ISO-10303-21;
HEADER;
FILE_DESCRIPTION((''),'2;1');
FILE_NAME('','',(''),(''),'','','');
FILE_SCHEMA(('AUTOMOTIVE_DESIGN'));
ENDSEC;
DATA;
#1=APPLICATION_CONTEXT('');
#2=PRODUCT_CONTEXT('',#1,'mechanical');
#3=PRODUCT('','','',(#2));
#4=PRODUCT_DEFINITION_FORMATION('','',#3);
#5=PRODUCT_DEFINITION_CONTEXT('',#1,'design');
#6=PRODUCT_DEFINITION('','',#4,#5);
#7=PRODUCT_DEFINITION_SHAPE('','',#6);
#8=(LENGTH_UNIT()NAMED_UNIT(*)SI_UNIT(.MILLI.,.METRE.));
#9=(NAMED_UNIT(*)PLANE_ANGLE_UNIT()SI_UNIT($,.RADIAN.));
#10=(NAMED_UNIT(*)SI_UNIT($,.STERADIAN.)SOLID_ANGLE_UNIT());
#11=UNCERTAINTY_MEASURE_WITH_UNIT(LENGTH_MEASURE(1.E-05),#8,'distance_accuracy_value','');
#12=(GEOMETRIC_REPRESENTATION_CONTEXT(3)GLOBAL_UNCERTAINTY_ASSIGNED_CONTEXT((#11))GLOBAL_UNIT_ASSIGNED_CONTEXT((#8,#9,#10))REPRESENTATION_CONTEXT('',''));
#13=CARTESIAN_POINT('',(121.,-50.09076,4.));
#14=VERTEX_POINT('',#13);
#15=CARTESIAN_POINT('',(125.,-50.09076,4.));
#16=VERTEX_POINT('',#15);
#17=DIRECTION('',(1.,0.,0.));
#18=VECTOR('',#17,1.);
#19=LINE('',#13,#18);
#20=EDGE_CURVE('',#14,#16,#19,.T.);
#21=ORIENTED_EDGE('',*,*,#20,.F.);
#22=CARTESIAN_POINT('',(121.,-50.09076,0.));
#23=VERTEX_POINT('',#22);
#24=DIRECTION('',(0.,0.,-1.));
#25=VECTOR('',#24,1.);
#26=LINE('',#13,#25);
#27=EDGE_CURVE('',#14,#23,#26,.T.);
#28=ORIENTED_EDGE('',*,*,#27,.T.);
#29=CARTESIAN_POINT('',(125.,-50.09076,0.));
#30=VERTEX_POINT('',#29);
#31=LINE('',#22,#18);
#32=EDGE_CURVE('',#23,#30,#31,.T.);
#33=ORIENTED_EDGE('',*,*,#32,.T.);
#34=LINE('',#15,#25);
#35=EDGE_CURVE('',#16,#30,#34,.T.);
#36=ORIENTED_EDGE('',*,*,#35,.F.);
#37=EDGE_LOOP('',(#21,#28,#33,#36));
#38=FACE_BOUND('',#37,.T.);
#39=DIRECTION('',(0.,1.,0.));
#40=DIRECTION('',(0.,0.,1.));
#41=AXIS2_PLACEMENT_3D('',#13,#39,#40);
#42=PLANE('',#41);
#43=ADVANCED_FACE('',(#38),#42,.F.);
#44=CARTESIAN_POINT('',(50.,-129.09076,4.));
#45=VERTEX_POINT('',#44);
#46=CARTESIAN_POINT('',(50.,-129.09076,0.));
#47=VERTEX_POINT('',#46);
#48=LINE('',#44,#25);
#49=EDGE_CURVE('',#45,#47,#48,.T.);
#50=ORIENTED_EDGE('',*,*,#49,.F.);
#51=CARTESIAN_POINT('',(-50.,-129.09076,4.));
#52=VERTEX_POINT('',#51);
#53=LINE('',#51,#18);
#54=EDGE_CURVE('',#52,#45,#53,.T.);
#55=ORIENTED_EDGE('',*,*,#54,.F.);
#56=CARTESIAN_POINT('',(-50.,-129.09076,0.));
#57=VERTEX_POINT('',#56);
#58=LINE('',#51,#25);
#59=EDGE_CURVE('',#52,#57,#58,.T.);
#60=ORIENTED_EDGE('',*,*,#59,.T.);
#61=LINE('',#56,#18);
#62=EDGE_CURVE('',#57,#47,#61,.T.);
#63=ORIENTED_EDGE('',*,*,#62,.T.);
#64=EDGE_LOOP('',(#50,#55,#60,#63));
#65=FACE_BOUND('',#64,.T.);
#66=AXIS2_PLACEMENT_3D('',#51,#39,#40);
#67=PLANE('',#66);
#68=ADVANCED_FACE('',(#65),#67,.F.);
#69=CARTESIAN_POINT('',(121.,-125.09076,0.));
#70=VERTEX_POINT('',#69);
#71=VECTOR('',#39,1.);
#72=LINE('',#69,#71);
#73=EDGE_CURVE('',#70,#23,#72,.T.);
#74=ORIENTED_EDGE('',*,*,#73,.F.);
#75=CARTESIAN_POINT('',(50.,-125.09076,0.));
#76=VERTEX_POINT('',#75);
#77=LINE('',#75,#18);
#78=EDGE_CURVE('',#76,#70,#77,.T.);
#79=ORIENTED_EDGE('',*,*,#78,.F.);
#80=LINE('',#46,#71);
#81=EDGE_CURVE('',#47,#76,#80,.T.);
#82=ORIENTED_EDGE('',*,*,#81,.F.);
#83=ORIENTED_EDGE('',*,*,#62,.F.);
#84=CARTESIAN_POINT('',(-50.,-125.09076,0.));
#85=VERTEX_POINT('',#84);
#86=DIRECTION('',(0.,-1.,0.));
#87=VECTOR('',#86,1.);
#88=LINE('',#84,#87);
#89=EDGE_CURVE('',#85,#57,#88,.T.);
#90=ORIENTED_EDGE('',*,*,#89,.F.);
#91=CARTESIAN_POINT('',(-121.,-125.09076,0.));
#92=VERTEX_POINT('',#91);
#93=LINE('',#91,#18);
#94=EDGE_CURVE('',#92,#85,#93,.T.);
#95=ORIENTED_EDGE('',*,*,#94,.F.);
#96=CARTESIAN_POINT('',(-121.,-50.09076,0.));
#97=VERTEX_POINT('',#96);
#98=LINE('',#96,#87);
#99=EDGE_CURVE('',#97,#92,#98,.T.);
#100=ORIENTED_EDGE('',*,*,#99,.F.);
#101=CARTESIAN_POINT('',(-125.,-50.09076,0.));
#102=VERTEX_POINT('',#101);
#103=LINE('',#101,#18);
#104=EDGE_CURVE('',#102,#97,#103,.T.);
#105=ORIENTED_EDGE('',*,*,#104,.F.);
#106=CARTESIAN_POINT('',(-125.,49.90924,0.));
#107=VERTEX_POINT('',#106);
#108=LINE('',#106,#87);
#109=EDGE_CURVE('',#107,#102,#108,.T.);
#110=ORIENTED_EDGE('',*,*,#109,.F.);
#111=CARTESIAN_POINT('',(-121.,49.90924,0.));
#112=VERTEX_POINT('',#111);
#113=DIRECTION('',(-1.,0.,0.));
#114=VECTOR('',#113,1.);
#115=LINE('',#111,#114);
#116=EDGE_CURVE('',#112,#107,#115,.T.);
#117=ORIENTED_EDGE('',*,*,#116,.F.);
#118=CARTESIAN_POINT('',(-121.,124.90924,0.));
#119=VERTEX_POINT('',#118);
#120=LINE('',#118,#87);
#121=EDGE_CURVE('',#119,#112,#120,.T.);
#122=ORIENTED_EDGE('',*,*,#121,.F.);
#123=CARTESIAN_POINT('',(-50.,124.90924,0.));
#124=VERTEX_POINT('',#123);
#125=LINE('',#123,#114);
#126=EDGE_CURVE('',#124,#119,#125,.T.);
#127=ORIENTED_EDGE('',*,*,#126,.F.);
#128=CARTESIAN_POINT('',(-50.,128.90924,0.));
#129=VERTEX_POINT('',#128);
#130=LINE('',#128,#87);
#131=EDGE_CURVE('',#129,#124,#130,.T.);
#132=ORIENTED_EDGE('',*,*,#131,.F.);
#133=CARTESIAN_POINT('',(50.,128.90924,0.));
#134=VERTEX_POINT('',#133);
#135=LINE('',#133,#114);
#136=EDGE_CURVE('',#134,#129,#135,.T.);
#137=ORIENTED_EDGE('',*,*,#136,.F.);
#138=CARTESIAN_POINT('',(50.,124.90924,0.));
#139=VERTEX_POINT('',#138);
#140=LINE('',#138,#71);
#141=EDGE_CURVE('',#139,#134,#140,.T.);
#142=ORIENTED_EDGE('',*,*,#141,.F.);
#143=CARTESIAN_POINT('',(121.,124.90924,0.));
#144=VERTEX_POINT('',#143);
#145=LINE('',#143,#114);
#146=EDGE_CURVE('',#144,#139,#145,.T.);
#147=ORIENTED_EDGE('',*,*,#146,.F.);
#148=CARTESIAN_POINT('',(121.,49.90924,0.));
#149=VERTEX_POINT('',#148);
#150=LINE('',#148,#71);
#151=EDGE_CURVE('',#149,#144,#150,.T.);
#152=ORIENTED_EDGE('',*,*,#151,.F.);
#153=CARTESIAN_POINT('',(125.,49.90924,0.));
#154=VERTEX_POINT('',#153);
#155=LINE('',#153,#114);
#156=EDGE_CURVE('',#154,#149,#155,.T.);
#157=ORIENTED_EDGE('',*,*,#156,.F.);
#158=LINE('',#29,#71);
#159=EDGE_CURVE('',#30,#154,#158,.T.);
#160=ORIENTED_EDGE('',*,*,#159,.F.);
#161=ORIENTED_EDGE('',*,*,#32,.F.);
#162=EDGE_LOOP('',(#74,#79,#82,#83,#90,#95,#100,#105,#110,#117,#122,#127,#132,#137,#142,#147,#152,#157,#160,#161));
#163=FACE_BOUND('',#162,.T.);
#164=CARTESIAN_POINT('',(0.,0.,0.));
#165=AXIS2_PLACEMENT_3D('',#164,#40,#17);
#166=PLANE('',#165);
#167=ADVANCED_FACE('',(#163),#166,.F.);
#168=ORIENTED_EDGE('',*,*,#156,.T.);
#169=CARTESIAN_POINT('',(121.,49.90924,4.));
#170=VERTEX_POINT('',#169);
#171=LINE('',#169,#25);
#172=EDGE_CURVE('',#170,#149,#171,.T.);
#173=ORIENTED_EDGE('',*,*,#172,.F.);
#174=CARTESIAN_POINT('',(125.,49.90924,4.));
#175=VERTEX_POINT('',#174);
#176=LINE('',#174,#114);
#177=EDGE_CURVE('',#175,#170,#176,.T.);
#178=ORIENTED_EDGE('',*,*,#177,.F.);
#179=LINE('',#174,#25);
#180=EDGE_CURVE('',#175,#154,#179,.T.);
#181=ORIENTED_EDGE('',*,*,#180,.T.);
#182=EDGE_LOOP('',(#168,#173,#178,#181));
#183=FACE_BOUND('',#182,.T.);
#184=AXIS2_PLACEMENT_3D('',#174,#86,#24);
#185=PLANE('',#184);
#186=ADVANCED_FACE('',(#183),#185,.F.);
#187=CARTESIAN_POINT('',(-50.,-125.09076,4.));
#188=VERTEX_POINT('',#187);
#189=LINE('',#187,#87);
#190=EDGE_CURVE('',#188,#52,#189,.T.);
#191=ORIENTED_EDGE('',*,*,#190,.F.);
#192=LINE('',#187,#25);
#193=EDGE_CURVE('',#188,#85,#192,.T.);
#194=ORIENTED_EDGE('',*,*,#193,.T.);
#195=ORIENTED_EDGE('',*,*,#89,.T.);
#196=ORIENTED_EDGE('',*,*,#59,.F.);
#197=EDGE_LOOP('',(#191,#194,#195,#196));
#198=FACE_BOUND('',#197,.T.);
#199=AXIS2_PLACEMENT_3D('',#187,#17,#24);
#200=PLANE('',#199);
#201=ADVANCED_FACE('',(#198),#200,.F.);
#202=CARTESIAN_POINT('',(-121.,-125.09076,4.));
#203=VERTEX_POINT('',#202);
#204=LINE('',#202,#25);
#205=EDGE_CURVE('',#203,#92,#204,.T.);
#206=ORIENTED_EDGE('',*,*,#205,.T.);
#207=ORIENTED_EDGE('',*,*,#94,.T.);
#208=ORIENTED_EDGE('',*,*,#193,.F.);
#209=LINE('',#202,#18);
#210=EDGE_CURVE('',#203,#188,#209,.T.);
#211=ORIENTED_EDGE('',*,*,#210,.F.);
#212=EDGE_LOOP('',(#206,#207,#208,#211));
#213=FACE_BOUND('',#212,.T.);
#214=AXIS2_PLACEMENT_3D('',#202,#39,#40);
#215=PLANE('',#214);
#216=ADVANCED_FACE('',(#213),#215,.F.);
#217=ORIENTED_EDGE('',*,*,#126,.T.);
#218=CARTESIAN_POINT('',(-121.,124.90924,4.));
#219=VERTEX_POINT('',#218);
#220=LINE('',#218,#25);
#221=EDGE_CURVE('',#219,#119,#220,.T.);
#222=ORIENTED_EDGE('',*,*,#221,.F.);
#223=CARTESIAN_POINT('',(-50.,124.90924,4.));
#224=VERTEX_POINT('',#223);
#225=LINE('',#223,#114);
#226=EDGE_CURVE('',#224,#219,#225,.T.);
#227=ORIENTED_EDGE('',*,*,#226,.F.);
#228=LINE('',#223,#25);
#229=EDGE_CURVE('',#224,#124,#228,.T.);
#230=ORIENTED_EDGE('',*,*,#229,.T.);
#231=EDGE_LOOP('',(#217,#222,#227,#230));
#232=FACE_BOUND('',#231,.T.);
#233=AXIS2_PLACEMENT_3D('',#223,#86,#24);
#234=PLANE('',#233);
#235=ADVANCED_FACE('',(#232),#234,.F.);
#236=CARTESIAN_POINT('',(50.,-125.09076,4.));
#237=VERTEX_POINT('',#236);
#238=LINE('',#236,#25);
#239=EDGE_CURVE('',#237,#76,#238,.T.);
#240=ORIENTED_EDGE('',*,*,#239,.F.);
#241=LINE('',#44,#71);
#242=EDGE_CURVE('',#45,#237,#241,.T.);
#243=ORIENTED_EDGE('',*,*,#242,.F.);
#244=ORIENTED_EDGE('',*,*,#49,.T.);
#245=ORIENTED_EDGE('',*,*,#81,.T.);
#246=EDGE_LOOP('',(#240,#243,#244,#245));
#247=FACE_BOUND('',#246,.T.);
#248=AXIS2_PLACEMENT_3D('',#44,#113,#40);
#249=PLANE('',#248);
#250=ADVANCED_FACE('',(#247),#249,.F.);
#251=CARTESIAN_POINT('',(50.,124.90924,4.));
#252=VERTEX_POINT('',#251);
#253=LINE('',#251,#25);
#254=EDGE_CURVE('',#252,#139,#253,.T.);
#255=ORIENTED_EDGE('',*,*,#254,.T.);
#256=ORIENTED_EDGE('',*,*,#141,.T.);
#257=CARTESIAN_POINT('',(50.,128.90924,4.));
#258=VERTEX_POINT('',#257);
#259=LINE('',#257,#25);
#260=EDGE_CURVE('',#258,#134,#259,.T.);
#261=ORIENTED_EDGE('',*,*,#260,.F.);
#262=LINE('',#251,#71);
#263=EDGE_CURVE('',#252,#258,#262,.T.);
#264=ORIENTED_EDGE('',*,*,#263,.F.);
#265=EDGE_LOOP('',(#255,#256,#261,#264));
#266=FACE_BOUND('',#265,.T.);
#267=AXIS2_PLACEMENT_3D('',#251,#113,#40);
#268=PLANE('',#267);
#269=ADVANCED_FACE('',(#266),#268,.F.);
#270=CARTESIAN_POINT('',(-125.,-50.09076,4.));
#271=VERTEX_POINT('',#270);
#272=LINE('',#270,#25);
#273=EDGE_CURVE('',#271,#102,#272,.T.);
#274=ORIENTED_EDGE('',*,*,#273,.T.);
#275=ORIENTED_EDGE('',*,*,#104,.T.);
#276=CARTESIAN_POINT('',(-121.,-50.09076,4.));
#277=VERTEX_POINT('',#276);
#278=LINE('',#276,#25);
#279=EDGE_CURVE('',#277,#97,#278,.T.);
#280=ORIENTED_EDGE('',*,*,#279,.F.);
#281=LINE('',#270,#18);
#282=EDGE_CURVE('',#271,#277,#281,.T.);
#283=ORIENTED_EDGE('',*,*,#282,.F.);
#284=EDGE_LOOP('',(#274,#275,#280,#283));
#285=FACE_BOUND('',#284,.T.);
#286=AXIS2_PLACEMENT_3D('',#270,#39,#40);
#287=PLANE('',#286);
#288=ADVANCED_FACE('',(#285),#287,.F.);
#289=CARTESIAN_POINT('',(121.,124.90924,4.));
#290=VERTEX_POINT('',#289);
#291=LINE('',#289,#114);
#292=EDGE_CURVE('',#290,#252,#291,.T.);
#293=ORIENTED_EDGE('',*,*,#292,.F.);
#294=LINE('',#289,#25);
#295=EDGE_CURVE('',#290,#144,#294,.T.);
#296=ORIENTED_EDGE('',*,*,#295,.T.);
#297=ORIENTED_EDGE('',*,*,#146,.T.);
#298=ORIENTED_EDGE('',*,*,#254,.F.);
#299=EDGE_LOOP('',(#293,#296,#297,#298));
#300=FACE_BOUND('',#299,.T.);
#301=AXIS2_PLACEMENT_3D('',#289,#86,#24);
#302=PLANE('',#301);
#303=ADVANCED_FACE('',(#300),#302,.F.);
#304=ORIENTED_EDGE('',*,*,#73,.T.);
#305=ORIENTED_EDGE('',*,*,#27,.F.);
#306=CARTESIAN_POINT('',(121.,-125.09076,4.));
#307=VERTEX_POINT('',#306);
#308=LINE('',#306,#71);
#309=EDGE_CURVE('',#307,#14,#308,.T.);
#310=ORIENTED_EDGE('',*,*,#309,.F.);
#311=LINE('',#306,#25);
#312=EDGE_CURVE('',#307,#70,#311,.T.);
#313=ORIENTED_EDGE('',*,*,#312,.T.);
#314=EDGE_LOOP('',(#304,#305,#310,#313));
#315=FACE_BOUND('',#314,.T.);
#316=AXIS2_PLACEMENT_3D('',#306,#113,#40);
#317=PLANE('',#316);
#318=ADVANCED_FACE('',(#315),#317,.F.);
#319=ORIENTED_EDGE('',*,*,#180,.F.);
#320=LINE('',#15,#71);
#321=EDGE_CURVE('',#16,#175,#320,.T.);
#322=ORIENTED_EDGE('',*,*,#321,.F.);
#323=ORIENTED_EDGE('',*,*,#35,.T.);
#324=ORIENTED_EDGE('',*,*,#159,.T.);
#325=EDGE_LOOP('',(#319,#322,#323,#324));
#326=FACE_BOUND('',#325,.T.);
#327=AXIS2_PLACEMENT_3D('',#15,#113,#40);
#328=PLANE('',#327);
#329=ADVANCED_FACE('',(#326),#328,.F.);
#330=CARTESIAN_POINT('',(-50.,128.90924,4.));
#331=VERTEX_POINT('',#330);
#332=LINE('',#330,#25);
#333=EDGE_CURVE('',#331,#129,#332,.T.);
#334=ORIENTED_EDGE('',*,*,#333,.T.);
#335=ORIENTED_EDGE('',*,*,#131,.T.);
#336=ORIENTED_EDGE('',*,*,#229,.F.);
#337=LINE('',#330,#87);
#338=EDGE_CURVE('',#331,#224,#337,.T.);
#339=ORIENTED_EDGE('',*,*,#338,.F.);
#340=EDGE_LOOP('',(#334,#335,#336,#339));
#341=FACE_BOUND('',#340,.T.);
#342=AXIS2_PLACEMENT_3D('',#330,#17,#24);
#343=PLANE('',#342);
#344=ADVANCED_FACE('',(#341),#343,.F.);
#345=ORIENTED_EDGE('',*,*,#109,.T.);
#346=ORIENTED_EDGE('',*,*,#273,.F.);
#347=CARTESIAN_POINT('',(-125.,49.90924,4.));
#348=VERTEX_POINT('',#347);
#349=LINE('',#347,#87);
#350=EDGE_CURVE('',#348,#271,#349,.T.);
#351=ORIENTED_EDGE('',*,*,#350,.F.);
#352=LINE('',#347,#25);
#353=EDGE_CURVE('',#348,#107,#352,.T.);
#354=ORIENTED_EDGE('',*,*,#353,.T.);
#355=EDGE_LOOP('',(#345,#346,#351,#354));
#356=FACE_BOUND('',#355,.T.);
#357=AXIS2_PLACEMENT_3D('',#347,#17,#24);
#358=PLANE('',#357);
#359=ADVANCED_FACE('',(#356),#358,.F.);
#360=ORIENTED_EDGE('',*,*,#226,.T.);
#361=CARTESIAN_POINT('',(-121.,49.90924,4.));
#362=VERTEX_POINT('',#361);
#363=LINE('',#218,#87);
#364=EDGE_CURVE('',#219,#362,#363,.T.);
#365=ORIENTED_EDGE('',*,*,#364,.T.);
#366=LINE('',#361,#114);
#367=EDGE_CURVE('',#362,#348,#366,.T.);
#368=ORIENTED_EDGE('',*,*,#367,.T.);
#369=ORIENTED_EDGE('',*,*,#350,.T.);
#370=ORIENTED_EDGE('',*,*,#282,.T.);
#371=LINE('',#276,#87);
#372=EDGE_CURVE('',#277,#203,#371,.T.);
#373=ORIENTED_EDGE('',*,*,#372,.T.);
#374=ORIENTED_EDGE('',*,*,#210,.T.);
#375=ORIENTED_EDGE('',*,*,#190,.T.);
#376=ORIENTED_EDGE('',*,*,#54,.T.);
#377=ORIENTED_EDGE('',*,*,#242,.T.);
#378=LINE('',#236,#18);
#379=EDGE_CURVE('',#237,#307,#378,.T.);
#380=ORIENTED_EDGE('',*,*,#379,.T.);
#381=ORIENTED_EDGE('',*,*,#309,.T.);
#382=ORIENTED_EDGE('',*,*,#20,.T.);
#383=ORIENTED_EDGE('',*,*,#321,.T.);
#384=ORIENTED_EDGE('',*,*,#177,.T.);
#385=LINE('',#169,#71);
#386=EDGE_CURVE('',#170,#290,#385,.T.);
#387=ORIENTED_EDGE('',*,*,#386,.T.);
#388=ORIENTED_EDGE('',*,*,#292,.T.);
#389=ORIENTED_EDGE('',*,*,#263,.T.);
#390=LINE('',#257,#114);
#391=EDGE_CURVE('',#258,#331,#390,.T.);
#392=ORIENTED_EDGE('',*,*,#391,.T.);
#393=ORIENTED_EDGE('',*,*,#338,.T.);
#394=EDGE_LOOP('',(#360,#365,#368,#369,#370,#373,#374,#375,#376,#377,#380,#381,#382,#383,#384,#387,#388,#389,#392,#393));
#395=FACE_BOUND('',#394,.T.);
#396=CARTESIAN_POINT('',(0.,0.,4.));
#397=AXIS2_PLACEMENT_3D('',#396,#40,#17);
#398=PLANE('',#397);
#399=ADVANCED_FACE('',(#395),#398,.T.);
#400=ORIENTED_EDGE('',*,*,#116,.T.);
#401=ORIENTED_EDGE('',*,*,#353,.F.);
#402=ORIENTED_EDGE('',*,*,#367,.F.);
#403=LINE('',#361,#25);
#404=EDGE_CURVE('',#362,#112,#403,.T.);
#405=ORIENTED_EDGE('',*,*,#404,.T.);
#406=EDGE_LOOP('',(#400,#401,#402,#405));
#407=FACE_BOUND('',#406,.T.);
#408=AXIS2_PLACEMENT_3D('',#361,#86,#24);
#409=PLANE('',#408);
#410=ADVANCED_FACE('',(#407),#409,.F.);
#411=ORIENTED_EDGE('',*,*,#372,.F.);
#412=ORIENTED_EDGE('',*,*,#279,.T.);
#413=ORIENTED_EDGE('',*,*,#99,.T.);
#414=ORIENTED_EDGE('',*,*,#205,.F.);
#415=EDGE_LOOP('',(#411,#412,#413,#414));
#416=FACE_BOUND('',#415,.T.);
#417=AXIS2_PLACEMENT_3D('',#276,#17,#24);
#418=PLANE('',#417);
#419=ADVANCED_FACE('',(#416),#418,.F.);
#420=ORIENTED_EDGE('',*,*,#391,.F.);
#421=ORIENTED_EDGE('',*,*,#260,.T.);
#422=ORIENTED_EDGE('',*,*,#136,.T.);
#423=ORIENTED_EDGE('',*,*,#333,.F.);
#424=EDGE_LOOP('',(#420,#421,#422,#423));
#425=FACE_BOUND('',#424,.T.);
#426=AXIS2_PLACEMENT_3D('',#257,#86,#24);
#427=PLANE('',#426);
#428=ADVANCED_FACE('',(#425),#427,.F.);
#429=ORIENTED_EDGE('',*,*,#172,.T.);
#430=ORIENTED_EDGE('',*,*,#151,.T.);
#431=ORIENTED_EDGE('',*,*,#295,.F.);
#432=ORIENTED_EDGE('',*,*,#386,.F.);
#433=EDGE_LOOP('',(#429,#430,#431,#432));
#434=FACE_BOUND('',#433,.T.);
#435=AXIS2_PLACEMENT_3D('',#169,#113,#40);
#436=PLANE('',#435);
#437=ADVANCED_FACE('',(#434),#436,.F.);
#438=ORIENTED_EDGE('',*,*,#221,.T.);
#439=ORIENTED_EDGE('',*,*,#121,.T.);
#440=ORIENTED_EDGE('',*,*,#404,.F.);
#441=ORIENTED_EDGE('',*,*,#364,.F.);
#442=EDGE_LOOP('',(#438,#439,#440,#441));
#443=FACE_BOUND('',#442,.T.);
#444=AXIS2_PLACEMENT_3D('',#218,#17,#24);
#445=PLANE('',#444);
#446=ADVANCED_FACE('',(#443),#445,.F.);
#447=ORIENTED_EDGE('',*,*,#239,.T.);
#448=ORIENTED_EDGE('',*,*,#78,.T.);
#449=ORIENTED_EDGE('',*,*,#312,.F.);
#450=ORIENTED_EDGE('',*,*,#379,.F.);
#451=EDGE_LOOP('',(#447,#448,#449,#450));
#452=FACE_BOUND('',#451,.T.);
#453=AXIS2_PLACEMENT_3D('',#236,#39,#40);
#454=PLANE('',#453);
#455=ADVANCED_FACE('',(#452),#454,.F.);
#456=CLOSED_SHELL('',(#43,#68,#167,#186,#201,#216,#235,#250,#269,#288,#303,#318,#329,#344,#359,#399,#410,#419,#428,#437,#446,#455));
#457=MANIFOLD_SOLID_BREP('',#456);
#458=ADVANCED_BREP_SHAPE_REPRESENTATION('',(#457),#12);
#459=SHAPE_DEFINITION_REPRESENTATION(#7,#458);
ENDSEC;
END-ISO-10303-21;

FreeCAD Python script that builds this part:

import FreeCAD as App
import Part
import Sketcher
Q = App.Units.Quantity

doc = App.newDocument("Part")
body = doc.addObject("PartDesign::Body", "Body")

sketch1 = doc.addObject("Sketcher::SketchObject", "Sketch")
body.addObject(sketch1)
sketch1.AttachmentSupport = (doc.XY_Plane, [""])
sketch1.MapMode = "FlatFace"
sketch1.addGeometry(Part.LineSegment(App.Vector(-50, 128.9, 0), App.Vector(-50, 124.9, 0)), False)
sketch1.addGeometry(Part.LineSegment(App.Vector(-50, 124.9, 0), App.Vector(-121, 124.9, 0)), False)
sketch1.addGeometry(Part.LineSegment(App.Vector(-121, 124.9, 0), App.Vector(-121, 49.9, 0)), False)
sketch1.addGeometry(Part.LineSegment(App.Vector(-121, 49.9, 0), App.Vector(-125, 49.9, 0)), False)
sketch1.addGeometry(Part.LineSegment(App.Vector(-125, 49.9, 0), App.Vector(-125, -50.1, 0)), False)
sketch1.addGeometry(Part.LineSegment(App.Vector(-125, -50.1, 0), App.Vector(-121, -50.1, 0)), False)
sketch1.addGeometry(Part.LineSegment(App.Vector(-121, -50.1, 0), App.Vector(-121, -125.1, 0)), False)
sketch1.addGeometry(Part.LineSegment(App.Vector(-121, -125.1, 0), App.Vector(-50, -125.1, 0)), False)
sketch1.addGeometry(Part.LineSegment(App.Vector(-50, -125.1, 0), App.Vector(-50, -129.1, 0)), False)
sketch1.addGeometry(Part.LineSegment(App.Vector(-50, -129.1, 0), App.Vector(50, -129.1, 0)), False)
sketch1.addGeometry(Part.LineSegment(App.Vector(50, -129.1, 0), App.Vector(50, -125.1, 0)), False)
sketch1.addGeometry(Part.LineSegment(App.Vector(50, -125.1, 0), App.Vector(121, -125.1, 0)), False)
sketch1.addGeometry(Part.LineSegment(App.Vector(121, -125.1, 0), App.Vector(121, -50.1, 0)), False)
sketch1.addGeometry(Part.LineSegment(App.Vector(121, -50.1, 0), App.Vector(125, -50.1, 0)), False)
sketch1.addGeometry(Part.LineSegment(App.Vector(125, -50.1, 0), App.Vector(125, 49.9, 0)), False)
sketch1.addGeometry(Part.LineSegment(App.Vector(125, 49.9, 0), App.Vector(121, 49.9, 0)), False)
sketch1.addGeometry(Part.LineSegment(App.Vector(121, 49.9, 0), App.Vector(121, 124.9, 0)), False)
sketch1.addGeometry(Part.LineSegment(App.Vector(121, 124.9, 0), App.Vector(50, 124.9, 0)), False)
sketch1.addGeometry(Part.LineSegment(App.Vector(50, 124.9, 0), App.Vector(50, 128.9, 0)), False)
sketch1.addGeometry(Part.LineSegment(App.Vector(50, 128.9, 0), App.Vector(-50, 128.9, 0)), False)
sketch1.addConstraint(Sketcher.Constraint("Coincident", 0, 2, 1, 1))
sketch1.addConstraint(Sketcher.Constraint("Coincident", 1, 2, 2, 1))
sketch1.addConstraint(Sketcher.Constraint("Coincident", 2, 2, 3, 1))
sketch1.addConstraint(Sketcher.Constraint("Coincident", 3, 2, 4, 1))
sketch1.addConstraint(Sketcher.Constraint("Coincident", 4, 2, 5, 1))
sketch1.addConstraint(Sketcher.Constraint("Coincident", 5, 2, 6, 1))
sketch1.addConstraint(Sketcher.Constraint("Coincident", 6, 2, 7, 1))
sketch1.addConstraint(Sketcher.Constraint("Coincident", 7, 2, 8, 1))
sketch1.addConstraint(Sketcher.Constraint("Coincident", 8, 2, 9, 1))
sketch1.addConstraint(Sketcher.Constraint("Coincident", 9, 2, 10, 1))
sketch1.addConstraint(Sketcher.Constraint("Coincident", 10, 2, 11, 1))
sketch1.addConstraint(Sketcher.Constraint("Coincident", 11, 2, 12, 1))
sketch1.addConstraint(Sketcher.Constraint("Coincident", 12, 2, 13, 1))
sketch1.addConstraint(Sketcher.Constraint("Coincident", 13, 2, 14, 1))
sketch1.addConstraint(Sketcher.Constraint("Coincident", 14, 2, 15, 1))
sketch1.addConstraint(Sketcher.Constraint("Coincident", 15, 2, 16, 1))
sketch1.addConstraint(Sketcher.Constraint("Coincident", 16, 2, 17, 1))
sketch1.addConstraint(Sketcher.Constraint("Coincident", 17, 2, 18, 1))
sketch1.addConstraint(Sketcher.Constraint("Coincident", 18, 2, 19, 1))
sketch1.addConstraint(Sketcher.Constraint("Coincident", 19, 2, 0, 1))
sketch1.addConstraint(Sketcher.Constraint("Vertical", 0))
sketch1.addConstraint(Sketcher.Constraint("Horizontal", 1))
sketch1.addConstraint(Sketcher.Constraint("Vertical", 2))
sketch1.addConstraint(Sketcher.Constraint("Horizontal", 3))
sketch1.addConstraint(Sketcher.Constraint("Vertical", 4))
sketch1.addConstraint(Sketcher.Constraint("Horizontal", 5))
sketch1.addConstraint(Sketcher.Constraint("Vertical", 6))
sketch1.addConstraint(Sketcher.Constraint("Horizontal", 7))
sketch1.addConstraint(Sketcher.Constraint("Vertical", 8))
sketch1.addConstraint(Sketcher.Constraint("Horizontal", 9))
sketch1.addConstraint(Sketcher.Constraint("Vertical", 10))
sketch1.addConstraint(Sketcher.Constraint("Horizontal", 11))
sketch1.addConstraint(Sketcher.Constraint("Vertical", 12))
sketch1.addConstraint(Sketcher.Constraint("Horizontal", 13))
sketch1.addConstraint(Sketcher.Constraint("Vertical", 14))
sketch1.addConstraint(Sketcher.Constraint("Horizontal", 15))
sketch1.addConstraint(Sketcher.Constraint("Vertical", 16))
sketch1.addConstraint(Sketcher.Constraint("Horizontal", 17))
sketch1.addConstraint(Sketcher.Constraint("Vertical", 18))
sketch1.addConstraint(Sketcher.Constraint("Horizontal", 19))
sketch1.addConstraint(Sketcher.Constraint("Symmetric", 7, 2, 10, 2, -2))
sketch1.addConstraint(Sketcher.Constraint("Symmetric", 5, 2, 12, 2, -2))
sketch1.addConstraint(Sketcher.Constraint("Symmetric", 3, 2, 14, 2, -2))
sketch1.addConstraint(Sketcher.Constraint("Symmetric", 1, 2, 16, 2, -2))
sketch1.addConstraint(Sketcher.Constraint("Vertical", 2, 2, 5, 2))
sketch1.addConstraint(Sketcher.Constraint("Vertical", 0, 2, 7, 2))
sketch1.addConstraint(Sketcher.Constraint("Vertical", 10, 2, 17, 2))
sketch1.addConstraint(Sketcher.Constraint("Equal", 15, 0))
sketch1.addConstraint(Sketcher.Constraint("Equal", 19, 4))
sketch1.addConstraint(Sketcher.Constraint("Equal", 2, 6))
sketch1.addConstraint(Sketcher.Constraint("Equal", 0, 8))
sketch1.addConstraint(Sketcher.Constraint("DistanceX", 1, 2, 1, 1, Q("71 mm")))
sketch1.addConstraint(Sketcher.Constraint("DistanceX", 3, 2, 3, 1, Q("4 mm")))
sketch1.addConstraint(Sketcher.Constraint("DistanceX", 9, 1, 9, 2, Q("100 mm")))
sketch1.addConstraint(Sketcher.Constraint("DistanceY", 2, 2, 2, 1, Q("75 mm")))
sketch1.addConstraint(Sketcher.Constraint("DistanceY", -1, 1, 0, 2, Q("124.90924 mm")))
pad1 = doc.addObject("PartDesign::Pad", "Pad")
body.addObject(pad1)
pad1.Profile = sketch1
pad1.Length = 4

doc.recompute()
